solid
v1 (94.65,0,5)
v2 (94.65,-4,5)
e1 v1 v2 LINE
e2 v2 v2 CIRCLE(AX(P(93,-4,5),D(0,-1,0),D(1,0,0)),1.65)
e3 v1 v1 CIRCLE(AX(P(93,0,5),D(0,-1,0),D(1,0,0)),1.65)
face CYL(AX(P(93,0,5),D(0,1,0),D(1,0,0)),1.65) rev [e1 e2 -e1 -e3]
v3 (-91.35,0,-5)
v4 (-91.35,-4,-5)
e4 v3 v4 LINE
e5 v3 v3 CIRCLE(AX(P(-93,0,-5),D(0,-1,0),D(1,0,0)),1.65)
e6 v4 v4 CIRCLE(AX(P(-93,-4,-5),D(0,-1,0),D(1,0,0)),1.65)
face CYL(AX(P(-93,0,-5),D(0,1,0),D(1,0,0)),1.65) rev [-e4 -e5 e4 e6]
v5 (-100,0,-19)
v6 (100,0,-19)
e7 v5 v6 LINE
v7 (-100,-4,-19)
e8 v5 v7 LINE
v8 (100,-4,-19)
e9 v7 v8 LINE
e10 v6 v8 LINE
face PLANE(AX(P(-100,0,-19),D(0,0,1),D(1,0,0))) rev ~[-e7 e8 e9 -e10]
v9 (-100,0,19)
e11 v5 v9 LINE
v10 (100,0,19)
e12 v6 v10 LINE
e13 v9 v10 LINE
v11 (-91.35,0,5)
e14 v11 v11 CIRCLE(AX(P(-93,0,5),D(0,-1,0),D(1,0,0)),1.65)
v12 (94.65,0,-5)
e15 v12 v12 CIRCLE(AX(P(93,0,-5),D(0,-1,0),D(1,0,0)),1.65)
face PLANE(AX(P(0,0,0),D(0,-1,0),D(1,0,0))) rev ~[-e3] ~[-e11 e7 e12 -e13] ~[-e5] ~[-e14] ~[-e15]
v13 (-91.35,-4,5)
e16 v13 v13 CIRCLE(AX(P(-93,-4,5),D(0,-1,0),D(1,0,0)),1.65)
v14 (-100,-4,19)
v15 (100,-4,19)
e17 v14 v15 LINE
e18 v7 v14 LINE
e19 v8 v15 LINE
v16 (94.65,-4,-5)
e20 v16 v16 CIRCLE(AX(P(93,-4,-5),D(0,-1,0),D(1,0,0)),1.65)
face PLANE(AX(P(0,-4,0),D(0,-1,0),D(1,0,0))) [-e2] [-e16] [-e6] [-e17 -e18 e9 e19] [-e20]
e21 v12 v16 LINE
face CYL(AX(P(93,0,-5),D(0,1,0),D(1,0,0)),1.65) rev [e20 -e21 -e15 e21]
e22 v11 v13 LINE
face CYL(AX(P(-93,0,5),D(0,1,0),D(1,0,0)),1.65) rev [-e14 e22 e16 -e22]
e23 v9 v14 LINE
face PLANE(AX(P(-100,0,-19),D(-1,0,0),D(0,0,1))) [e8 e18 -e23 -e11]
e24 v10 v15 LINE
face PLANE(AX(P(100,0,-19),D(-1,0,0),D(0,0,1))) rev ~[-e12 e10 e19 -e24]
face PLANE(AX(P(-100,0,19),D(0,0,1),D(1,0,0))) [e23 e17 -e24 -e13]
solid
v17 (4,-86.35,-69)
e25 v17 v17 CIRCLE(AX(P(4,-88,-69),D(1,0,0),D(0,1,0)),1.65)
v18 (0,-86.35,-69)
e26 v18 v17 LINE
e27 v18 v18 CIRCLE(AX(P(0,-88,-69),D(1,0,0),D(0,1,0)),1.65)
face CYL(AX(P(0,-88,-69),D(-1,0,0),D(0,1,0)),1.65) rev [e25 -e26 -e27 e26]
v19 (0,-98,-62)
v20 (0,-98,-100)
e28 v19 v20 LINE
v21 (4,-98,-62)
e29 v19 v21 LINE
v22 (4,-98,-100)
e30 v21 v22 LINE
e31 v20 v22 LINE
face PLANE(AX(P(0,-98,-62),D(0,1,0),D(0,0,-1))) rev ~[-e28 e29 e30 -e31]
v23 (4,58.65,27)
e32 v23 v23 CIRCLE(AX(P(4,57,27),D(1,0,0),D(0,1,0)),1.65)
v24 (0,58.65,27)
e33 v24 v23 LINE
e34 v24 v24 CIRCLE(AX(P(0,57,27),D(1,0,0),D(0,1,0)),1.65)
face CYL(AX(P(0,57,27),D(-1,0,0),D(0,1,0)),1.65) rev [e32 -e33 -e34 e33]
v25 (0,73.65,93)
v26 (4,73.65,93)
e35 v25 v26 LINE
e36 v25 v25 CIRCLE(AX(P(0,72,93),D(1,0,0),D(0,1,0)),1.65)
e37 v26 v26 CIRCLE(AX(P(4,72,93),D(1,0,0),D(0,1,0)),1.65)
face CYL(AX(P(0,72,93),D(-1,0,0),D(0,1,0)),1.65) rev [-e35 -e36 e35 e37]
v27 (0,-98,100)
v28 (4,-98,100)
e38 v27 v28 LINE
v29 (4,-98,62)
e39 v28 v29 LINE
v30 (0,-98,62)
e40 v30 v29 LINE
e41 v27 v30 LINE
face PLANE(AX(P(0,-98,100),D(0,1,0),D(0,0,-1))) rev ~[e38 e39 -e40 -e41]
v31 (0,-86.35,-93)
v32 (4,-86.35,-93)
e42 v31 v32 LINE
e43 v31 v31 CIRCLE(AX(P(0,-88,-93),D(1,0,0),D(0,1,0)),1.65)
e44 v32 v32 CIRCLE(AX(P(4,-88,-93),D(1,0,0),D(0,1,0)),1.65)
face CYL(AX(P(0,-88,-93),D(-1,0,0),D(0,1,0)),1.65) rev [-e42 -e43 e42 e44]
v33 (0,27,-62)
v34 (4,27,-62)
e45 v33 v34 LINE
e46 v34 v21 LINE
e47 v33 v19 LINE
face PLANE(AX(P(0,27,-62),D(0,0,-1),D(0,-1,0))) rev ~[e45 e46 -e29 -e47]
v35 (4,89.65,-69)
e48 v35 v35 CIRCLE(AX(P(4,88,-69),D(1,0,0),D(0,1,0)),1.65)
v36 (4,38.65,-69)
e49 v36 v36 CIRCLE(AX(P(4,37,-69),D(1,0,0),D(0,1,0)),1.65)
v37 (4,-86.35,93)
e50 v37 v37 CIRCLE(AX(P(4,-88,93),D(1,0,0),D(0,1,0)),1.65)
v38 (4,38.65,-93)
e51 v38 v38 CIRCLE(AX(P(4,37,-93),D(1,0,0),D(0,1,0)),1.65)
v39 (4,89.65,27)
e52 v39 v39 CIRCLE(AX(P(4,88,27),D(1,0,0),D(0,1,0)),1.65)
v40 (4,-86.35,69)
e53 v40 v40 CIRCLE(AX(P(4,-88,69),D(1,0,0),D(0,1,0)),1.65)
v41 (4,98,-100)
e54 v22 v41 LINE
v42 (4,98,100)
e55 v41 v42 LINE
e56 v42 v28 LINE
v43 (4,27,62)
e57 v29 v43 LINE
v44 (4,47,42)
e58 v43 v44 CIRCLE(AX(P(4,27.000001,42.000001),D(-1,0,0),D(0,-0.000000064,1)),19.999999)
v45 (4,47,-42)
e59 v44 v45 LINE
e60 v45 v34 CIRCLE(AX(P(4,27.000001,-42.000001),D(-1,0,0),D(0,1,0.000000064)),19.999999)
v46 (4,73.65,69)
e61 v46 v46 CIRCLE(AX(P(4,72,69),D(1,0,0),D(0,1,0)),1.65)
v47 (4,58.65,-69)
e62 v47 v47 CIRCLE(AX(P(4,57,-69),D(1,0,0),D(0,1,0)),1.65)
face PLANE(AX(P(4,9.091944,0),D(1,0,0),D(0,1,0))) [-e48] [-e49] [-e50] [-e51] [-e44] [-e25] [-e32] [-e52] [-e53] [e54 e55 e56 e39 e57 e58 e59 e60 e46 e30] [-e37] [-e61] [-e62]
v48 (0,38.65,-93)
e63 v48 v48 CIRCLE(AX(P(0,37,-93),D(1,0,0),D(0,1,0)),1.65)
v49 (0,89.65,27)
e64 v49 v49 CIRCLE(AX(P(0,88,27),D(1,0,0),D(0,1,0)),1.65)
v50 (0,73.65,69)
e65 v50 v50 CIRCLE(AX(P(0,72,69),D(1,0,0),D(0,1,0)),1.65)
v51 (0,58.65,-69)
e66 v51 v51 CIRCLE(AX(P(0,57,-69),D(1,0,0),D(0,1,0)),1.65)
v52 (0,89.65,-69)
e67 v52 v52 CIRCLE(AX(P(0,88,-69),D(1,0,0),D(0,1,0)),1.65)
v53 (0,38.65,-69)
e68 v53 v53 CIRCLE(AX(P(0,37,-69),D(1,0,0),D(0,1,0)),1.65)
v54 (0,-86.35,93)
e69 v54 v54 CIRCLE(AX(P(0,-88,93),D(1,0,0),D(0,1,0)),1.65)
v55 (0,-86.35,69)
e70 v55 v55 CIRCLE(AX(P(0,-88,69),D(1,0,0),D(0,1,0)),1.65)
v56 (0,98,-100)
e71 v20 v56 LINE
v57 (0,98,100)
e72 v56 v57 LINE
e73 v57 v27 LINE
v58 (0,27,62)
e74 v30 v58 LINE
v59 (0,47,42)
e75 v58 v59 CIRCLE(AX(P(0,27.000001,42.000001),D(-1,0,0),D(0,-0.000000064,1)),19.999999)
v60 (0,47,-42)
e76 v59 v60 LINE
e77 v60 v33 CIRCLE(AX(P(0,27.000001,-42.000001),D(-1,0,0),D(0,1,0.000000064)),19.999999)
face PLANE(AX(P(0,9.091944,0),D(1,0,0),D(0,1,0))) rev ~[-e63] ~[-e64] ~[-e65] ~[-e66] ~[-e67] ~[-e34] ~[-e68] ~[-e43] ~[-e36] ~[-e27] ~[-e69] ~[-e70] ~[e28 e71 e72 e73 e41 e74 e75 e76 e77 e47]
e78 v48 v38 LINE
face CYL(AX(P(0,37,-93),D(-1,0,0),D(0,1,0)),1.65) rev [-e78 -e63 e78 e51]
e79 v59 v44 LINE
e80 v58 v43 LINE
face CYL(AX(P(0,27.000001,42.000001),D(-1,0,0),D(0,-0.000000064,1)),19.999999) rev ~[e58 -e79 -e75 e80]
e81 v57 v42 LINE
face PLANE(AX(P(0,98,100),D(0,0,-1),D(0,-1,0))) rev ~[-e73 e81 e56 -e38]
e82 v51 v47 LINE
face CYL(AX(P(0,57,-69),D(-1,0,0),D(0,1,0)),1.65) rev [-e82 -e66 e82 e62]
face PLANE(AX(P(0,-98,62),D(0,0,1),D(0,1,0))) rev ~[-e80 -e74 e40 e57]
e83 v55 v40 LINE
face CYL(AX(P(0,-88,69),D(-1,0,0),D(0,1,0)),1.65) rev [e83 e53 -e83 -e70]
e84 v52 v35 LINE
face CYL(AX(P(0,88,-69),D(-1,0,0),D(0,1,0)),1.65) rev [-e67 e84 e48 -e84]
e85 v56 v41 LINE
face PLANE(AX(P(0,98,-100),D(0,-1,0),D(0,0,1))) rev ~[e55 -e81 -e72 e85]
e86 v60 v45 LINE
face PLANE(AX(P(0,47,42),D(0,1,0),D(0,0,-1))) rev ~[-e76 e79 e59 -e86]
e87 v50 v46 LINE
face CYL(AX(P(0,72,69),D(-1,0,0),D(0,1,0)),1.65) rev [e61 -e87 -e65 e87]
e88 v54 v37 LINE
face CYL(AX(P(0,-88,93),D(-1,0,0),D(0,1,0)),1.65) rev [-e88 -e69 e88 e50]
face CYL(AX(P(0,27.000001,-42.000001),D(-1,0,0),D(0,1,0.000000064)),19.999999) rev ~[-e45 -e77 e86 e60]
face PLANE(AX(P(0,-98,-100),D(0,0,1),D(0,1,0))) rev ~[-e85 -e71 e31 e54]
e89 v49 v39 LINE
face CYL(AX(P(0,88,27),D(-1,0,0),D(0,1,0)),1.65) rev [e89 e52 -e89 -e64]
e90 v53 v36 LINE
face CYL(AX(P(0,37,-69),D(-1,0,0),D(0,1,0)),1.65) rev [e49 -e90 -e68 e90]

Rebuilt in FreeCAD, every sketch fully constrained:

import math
import FreeCAD as App
import Part
import Sketcher

V = App.Vector
Q = App.Units.Quantity

doc = App.newDocument("Part")
body = doc.addObject("PartDesign::Body", "Body")

# Sketch on XZ plane
sketch1 = body.newObject("Sketcher::SketchObject", "Sketch")
sketch1.AttachmentSupport = (doc.getObject("XZ_Plane"), [""])
sketch1.MapMode = "FlatFace"
sketch1.addGeometry(Part.LineSegment(V(-100, 19, 0), V(-100, -19, 0)), False)
sketch1.addGeometry(Part.LineSegment(V(-100, -19, 0), V(100, -19, 0)), False)
sketch1.addGeometry(Part.LineSegment(V(100, -19, 0), V(100, 19, 0)), False)
sketch1.addGeometry(Part.LineSegment(V(100, 19, 0), V(-100, 19, 0)), False)
sketch1.addGeometry(Part.Circle(V(-93, -5, 0), V(0, 0, 1), 1.6), False)
sketch1.addGeometry(Part.Circle(V(93, -5, 0), V(0, 0, 1), 1.6), False)
sketch1.addGeometry(Part.Circle(V(-93, 5, 0), V(0, 0, 1), 1.6), False)
sketch1.addGeometry(Part.Circle(V(93, 5, 0), V(0, 0, 1), 1.6), False)
sketch1.addConstraint(Sketcher.Constraint("Coincident", 0, 2, 1, 1))
sketch1.addConstraint(Sketcher.Constraint("Coincident", 1, 2, 2, 1))
sketch1.addConstraint(Sketcher.Constraint("Coincident", 2, 2, 3, 1))
sketch1.addConstraint(Sketcher.Constraint("Coincident", 3, 2, 0, 1))
sketch1.addConstraint(Sketcher.Constraint("Vertical", 0))
sketch1.addConstraint(Sketcher.Constraint("Horizontal", 1))
sketch1.addConstraint(Sketcher.Constraint("Vertical", 2))
sketch1.addConstraint(Sketcher.Constraint("Horizontal", 3))
sketch1.addConstraint(Sketcher.Constraint("Equal", 4, 5))
sketch1.addConstraint(Sketcher.Constraint("Equal", 5, 6))
sketch1.addConstraint(Sketcher.Constraint("Equal", 6, 7))
sketch1.addConstraint(Sketcher.Constraint("Symmetric", 5, 3, 6, 3, -1, 1))
sketch1.addConstraint(Sketcher.Constraint("Symmetric", 4, 3, 7, 3, -1, 1))
sketch1.addConstraint(Sketcher.Constraint("Symmetric", 0, 2, 2, 2, -1, 1))
sketch1.addConstraint(Sketcher.Constraint("Symmetric", 4, 3, 5, 3, -2))
sketch1.addConstraint(Sketcher.Constraint("Diameter", 4, Q("3.3 mm")))
sketch1.addConstraint(Sketcher.Constraint("DistanceX", 1, 1, 1, 2, Q("200 mm")))
sketch1.addConstraint(Sketcher.Constraint("DistanceY", 0, 2, 0, 1, Q("38 mm")))
sketch1.addConstraint(Sketcher.Constraint("DistanceX", 4, 3, -1, 1, Q("93 mm")))
sketch1.addConstraint(Sketcher.Constraint("DistanceY", 4, 3, -1, 1, Q("5 mm")))
pad1 = body.newObject("PartDesign::Pad", "Pad")
pad1.Profile = sketch1
pad1.Length = 4
body2 = doc.addObject("PartDesign::Body", "Body001")

# Sketch on YZ plane
sketch2 = body2.newObject("Sketcher::SketchObject", "Sketch001")
sketch2.AttachmentSupport = (doc.getObject("YZ_Plane001"), [""])
sketch2.MapMode = "FlatFace"
sketch2.addGeometry(Part.LineSegment(V(98, -100, 0), V(98, 100, 0)), False)
sketch2.addGeometry(Part.LineSegment(V(98, 100, 0), V(-98, 100, 0)), False)
sketch2.addGeometry(Part.LineSegment(V(-98, 100, 0), V(-98, 62, 0)), False)
sketch2.addGeometry(Part.LineSegment(V(-98, 62, 0), V(27, 62, 0)), False)
sketch2.addGeometry(Part.ArcOfCircle(Part.Circle(V(27, 42, 0), V(0, 0, 1), 20), math.radians(0), math.radians(90)), False)
sketch2.addGeometry(Part.LineSegment(V(47, 42, 0), V(47, -42, 0)), False)
sketch2.addGeometry(Part.ArcOfCircle(Part.Circle(V(27, -42, 0), V(0, 0, 1), 20), math.radians(-90), math.radians(0)), False)
sketch2.addGeometry(Part.LineSegment(V(27, -62, 0), V(-98, -62, 0)), False)
sketch2.addGeometry(Part.LineSegment(V(-98, -62, 0), V(-98, -100, 0)), False)
sketch2.addGeometry(Part.LineSegment(V(-98, -100, 0), V(98, -100, 0)), False)
sketch2.addGeometry(Part.Circle(V(-88, -93, 0), V(0, 0, 1), 1.6), False)
sketch2.addGeometry(Part.Circle(V(-88, -69, 0), V(0, 0, 1), 1.6), False)
sketch2.addGeometry(Part.Circle(V(37, -93, 0), V(0, 0, 1), 1.6), False)
sketch2.addGeometry(Part.Circle(V(37, -69, 0), V(0, 0, 1), 1.6), False)
sketch2.addGeometry(Part.Circle(V(57, -69, 0), V(0, 0, 1), 1.6), False)
sketch2.addGeometry(Part.Circle(V(88, -69, 0), V(0, 0, 1), 1.6), False)
sketch2.addGeometry(Part.Circle(V(-88, 69, 0), V(0, 0, 1), 1.6), False)
sketch2.addGeometry(Part.Circle(V(-88, 93, 0), V(0, 0, 1), 1.6), False)
sketch2.addGeometry(Part.Circle(V(57, 27, 0), V(0, 0, 1), 1.6), False)
sketch2.addGeometry(Part.Circle(V(88, 27, 0), V(0, 0, 1), 1.6), False)
sketch2.addGeometry(Part.Circle(V(72, 69, 0), V(0, 0, 1), 1.6), False)
sketch2.addGeometry(Part.Circle(V(72, 93, 0), V(0, 0, 1), 1.6), False)
sketch2.addConstraint(Sketcher.Constraint("Coincident", 0, 2, 1, 1))
sketch2.addConstraint(Sketcher.Constraint("Coincident", 1, 2, 2, 1))
sketch2.addConstraint(Sketcher.Constraint("Coincident", 2, 2, 3, 1))
sketch2.addConstraint(Sketcher.Constraint("Tangent", 3, 2, 4, 2))
sketch2.addConstraint(Sketcher.Constraint("Tangent", 4, 1, 5, 1))
sketch2.addConstraint(Sketcher.Constraint("Tangent", 5, 2, 6, 2))
sketch2.addConstraint(Sketcher.Constraint("Tangent", 6, 1, 7, 1))
sketch2.addConstraint(Sketcher.Constraint("Coincident", 7, 2, 8, 1))
sketch2.addConstraint(Sketcher.Constraint("Coincident", 8, 2, 9, 1))
sketch2.addConstraint(Sketcher.Constraint("Coincident", 9, 2, 0, 1))
sketch2.addConstraint(Sketcher.Constraint("Vertical", 0))
sketch2.addConstraint(Sketcher.Constraint("Horizontal", 1))
sketch2.addConstraint(Sketcher.Constraint("Vertical", 2))
sketch2.addConstraint(Sketcher.Constraint("Horizontal", 3))
sketch2.addConstraint(Sketcher.Constraint("Vertical", 5))
sketch2.addConstraint(Sketcher.Constraint("Horizontal", 7))
sketch2.addConstraint(Sketcher.Constraint("Vertical", 8))
sketch2.addConstraint(Sketcher.Constraint("Horizontal", 9))
sketch2.addConstraint(Sketcher.Constraint("Equal", 4, 6))
sketch2.addConstraint(Sketcher.Constraint("Equal", 10, 11))
sketch2.addConstraint(Sketcher.Constraint("Equal", 11, 12))
sketch2.addConstraint(Sketcher.Constraint("Equal", 12, 13))
sketch2.addConstraint(Sketcher.Constraint("Equal", 13, 14))
sketch2.addConstraint(Sketcher.Constraint("Equal", 14, 15))
sketch2.addConstraint(Sketcher.Constraint("Equal", 15, 16))
sketch2.addConstraint(Sketcher.Constraint("Equal", 16, 17))
sketch2.addConstraint(Sketcher.Constraint("Equal", 17, 18))
sketch2.addConstraint(Sketcher.Constraint("Equal", 18, 19))
sketch2.addConstraint(Sketcher.Constraint("Equal", 19, 20))
sketch2.addConstraint(Sketcher.Constraint("Equal", 20, 21))
sketch2.addConstraint(Sketcher.Constraint("Symmetric", 15, 3, 16, 3, -1, 1))
sketch2.addConstraint(Sketcher.Constraint("Symmetric", 0, 2, 8, 2, -1, 1))
sketch2.addConstraint(Sketcher.Constraint("Symmetric", 11, 3, 15, 3, -2))
sketch2.addConstraint(Sketcher.Constraint("Symmetric", 10, 3, 17, 3, -1))
sketch2.addConstraint(Sketcher.Constraint("Symmetric", 2, 2, 7, 2, -1))
sketch2.addConstraint(Sketcher.Constraint("Horizontal", 10, 3, 12, 3))
sketch2.addConstraint(Sketcher.Constraint("Horizontal", 11, 3, 13, 3))
sketch2.addConstraint(Sketcher.Constraint("Horizontal", 13, 3, 14, 3))
sketch2.addConstraint(Sketcher.Constraint("Horizontal", 18, 3, 19, 3))
sketch2.addConstraint(Sketcher.Constraint("Horizontal", 16, 3, 20, 3))
sketch2.addConstraint(Sketcher.Constraint("Horizontal", 17, 3, 21, 3))
sketch2.addConstraint(Sketcher.Constraint("Vertical", 10, 3, 11, 3))
sketch2.addConstraint(Sketcher.Constraint("Vertical", 12, 3, 13, 3))
sketch2.addConstraint(Sketcher.Constraint("Vertical", 14, 3, 18, 3))
sketch2.addConstraint(Sketcher.Constraint("Vertical", 15, 3, 19, 3))
sketch2.addConstraint(Sketcher.Constraint("Vertical", 20, 3, 21, 3))
sketch2.addConstraint(Sketcher.Constraint("Radius", 4, Q("19.999999 mm")))
sketch2.addConstraint(Sketcher.Constraint("Diameter", 10, Q("3.3 mm")))
sketch2.addConstraint(Sketcher.Constraint("DistanceX", 1, 2, 1, 1, Q("196 mm")))
sketch2.addConstraint(Sketcher.Constraint("DistanceX", 3, 1, 3, 2, Q("125 mm")))
sketch2.addConstraint(Sketcher.Constraint("DistanceY", 0, 1, 0, 2, Q("200 mm")))
sketch2.addConstraint(Sketcher.Constraint("DistanceY", 2, 2, 2, 1, Q("38 mm")))
sketch2.addConstraint(Sketcher.Constraint("DistanceX", 10, 3, -1, 1, Q("88 mm")))
sketch2.addConstraint(Sketcher.Constraint("DistanceY", 10, 3, -1, 1, Q("93 mm")))
sketch2.addConstraint(Sketcher.Constraint("DistanceY", 11, 3, -1, 1, Q("69 mm")))
sketch2.addConstraint(Sketcher.Constraint("DistanceX", -1, 1, 12, 3, Q("37 mm")))
sketch2.addConstraint(Sketcher.Constraint("DistanceX", -1, 1, 14, 3, Q("57 mm")))
sketch2.addConstraint(Sketcher.Constraint("DistanceY", -1, 1, 18, 3, Q("27 mm")))
sketch2.addConstraint(Sketcher.Constraint("DistanceX", -1, 1, 20, 3, Q("72 mm")))
pad2 = body2.newObject("PartDesign::Pad", "Pad001")
pad2.Profile = sketch2
pad2.Length = 4

doc.recompute()
